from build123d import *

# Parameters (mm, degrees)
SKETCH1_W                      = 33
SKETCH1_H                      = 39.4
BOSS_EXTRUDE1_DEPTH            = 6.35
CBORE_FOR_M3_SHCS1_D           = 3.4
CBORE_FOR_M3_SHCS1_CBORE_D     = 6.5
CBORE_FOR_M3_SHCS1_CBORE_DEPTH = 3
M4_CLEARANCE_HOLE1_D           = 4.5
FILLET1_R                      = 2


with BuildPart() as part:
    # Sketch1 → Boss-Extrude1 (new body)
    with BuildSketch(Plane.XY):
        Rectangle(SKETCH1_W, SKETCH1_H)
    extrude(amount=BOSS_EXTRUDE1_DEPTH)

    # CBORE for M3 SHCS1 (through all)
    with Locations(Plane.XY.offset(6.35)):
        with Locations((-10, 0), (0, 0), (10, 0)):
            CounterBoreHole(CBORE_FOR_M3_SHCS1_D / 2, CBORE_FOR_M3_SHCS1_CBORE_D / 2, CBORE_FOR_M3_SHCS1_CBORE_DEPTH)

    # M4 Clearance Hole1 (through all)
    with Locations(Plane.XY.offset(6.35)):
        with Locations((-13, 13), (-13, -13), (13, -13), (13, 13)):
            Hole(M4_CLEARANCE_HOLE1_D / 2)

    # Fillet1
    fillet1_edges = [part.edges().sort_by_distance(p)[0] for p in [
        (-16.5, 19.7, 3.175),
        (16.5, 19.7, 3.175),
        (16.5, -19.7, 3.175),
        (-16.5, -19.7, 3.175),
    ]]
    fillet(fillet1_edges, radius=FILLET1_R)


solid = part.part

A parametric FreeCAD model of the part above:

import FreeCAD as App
import Part
import Sketcher

V = App.Vector


def edges_at(feature, points):
    """Names of the edges that pass closest to the given points."""
    edges = feature.Shape.Edges
    near = lambda p: min(range(len(edges)), key=lambda i: edges[i].distToShape(Part.Vertex(*p))[0])
    return sorted({f"Edge{near(p) + 1}" for p in points})


def add_polygon(sketch, points):
    """Adds a closed chain of lines whose ends are joined by coincident constraints."""
    first, n = sketch.GeometryCount, len(points)
    for a, b in zip(points, points[1:] + points[:1]):
        sketch.addGeometry(Part.LineSegment(App.Vector(*a, 0), App.Vector(*b, 0)), False)
    for i in range(n):
        sketch.addConstraint(Sketcher.Constraint("Coincident", first + i, 2, first + (i + 1) % n, 1))

doc = App.newDocument("Part")
body = doc.addObject("PartDesign::Body", "Body")

sketch1 = doc.addObject("Sketcher::SketchObject", "Sketch")
body.addObject(sketch1)
sketch1.AttachmentSupport = (doc.XY_Plane, [""])
sketch1.MapMode = "FlatFace"
add_polygon(sketch1, [(-16.5, 19.7), (-16.5, -19.7), (16.5, -19.7), (16.5, 19.7)])
sketch1.addConstraint(Sketcher.Constraint("Vertical", 0))
sketch1.addConstraint(Sketcher.Constraint("Horizontal", 1))
sketch1.addConstraint(Sketcher.Constraint("Vertical", 2))
sketch1.addConstraint(Sketcher.Constraint("Horizontal", 3))
sketch1.addConstraint(Sketcher.Constraint("Symmetric", 0, 2, 2, 2, -1, 1))
sketch1.addConstraint(Sketcher.Constraint("DistanceX", 1, 1, 1, 2, 33.0))
sketch1.addConstraint(Sketcher.Constraint("DistanceY", 0, 2, 0, 1, 39.4))
pad1 = doc.addObject("PartDesign::Pad", "Pad")
body.addObject(pad1)
pad1.Profile = sketch1
pad1.Length = 6.35

sketch2 = doc.addObject("Sketcher::SketchObject", "Sketch001")
body.addObject(sketch2)
sketch2.AttachmentSupport = (doc.XY_Plane, [""])
sketch2.MapMode = "FlatFace"
sketch2.AttachmentOffset = App.Placement(V(0, 0, 6.35), App.Rotation())
sketch2.addGeometry(Part.Circle(V(-10, 0, 0), V(0, 0, 1), 1.7), False)
sketch2.addGeometry(Part.Circle(V(0, 0, 0), V(0, 0, 1), 1.7), False)
sketch2.addGeometry(Part.Circle(V(10, 0, 0), V(0, 0, 1), 1.7), False)
sketch2.addConstraint(Sketcher.Constraint("Coincident", 1, 3, -1, 1))
sketch2.addConstraint(Sketcher.Constraint("Equal", 0, 1))
sketch2.addConstraint(Sketcher.Constraint("Equal", 1, 2))
sketch2.addConstraint(Sketcher.Constraint("Symmetric", 0, 3, 2, 3, -1, 1))
sketch2.addConstraint(Sketcher.Constraint("PointOnObject", 0, 3, -1))
sketch2.addConstraint(Sketcher.Constraint("Diameter", 0, 3.4))
sketch2.addConstraint(Sketcher.Constraint("DistanceX", 0, 3, -1, 1, 10.0))
doc.recompute()
hole = doc.addObject("PartDesign::Hole", "Hole")
body.addObject(hole)
hole.Profile = sketch2
hole.ThreadType = "None"
hole.Diameter = 3.4
hole.DepthType = "ThroughAll"
hole.HoleCutType = "Counterbore"
hole.HoleCutDiameter = 6.5
hole.HoleCutDepth = 3

sketch3 = doc.addObject("Sketcher::SketchObject", "Sketch002")
body.addObject(sketch3)
sketch3.AttachmentSupport = (doc.XY_Plane, [""])
sketch3.MapMode = "FlatFace"
sketch3.AttachmentOffset = App.Placement(V(0, 0, 6.35), App.Rotation())
sketch3.addGeometry(Part.Circle(V(-13, 13, 0), V(0, 0, 1), 2.25), False)
sketch3.addGeometry(Part.Circle(V(-13, -13, 0), V(0, 0, 1), 2.25), False)
sketch3.addGeometry(Part.Circle(V(13, -13, 0), V(0, 0, 1), 2.25), False)
sketch3.addGeometry(Part.Circle(V(13, 13, 0), V(0, 0, 1), 2.25), False)
sketch3.addConstraint(Sketcher.Constraint("Equal", 0, 1))
sketch3.addConstraint(Sketcher.Constraint("Equal", 1, 2))
sketch3.addConstraint(Sketcher.Constraint("Equal", 2, 3))
sketch3.addConstraint(Sketcher.Constraint("Symmetric", 0, 3, 2, 3, -1, 1))
sketch3.addConstraint(Sketcher.Constraint("Symmetric", 1, 3, 3, 3, -1, 1))
sketch3.addConstraint(Sketcher.Constraint("Symmetric", 1, 3, 2, 3, -2))
sketch3.addConstraint(Sketcher.Constraint("Diameter", 0, 4.5))
sketch3.addConstraint(Sketcher.Constraint("DistanceX", 0, 3, -1, 1, 13.0))
sketch3.addConstraint(Sketcher.Constraint("DistanceY", -1, 1, 0, 3, 13.0))
doc.recompute()
hole2 = doc.addObject("PartDesign::Hole", "Hole001")
body.addObject(hole2)
hole2.Profile = sketch3
hole2.ThreadType = "None"
hole2.Diameter = 4.5
hole2.DepthType = "ThroughAll"
doc.recompute()

fillet = doc.addObject("PartDesign::Fillet", "Fillet")
body.addObject(fillet)
fillet.Base = (hole2, edges_at(hole2, [
    (-16.5, 19.7, 3.175),
    (16.5, 19.7, 3.175),
    (16.5, -19.7, 3.175),
    (-16.5, -19.7, 3.175),
]))
fillet.Radius = 2

doc.recompute()
